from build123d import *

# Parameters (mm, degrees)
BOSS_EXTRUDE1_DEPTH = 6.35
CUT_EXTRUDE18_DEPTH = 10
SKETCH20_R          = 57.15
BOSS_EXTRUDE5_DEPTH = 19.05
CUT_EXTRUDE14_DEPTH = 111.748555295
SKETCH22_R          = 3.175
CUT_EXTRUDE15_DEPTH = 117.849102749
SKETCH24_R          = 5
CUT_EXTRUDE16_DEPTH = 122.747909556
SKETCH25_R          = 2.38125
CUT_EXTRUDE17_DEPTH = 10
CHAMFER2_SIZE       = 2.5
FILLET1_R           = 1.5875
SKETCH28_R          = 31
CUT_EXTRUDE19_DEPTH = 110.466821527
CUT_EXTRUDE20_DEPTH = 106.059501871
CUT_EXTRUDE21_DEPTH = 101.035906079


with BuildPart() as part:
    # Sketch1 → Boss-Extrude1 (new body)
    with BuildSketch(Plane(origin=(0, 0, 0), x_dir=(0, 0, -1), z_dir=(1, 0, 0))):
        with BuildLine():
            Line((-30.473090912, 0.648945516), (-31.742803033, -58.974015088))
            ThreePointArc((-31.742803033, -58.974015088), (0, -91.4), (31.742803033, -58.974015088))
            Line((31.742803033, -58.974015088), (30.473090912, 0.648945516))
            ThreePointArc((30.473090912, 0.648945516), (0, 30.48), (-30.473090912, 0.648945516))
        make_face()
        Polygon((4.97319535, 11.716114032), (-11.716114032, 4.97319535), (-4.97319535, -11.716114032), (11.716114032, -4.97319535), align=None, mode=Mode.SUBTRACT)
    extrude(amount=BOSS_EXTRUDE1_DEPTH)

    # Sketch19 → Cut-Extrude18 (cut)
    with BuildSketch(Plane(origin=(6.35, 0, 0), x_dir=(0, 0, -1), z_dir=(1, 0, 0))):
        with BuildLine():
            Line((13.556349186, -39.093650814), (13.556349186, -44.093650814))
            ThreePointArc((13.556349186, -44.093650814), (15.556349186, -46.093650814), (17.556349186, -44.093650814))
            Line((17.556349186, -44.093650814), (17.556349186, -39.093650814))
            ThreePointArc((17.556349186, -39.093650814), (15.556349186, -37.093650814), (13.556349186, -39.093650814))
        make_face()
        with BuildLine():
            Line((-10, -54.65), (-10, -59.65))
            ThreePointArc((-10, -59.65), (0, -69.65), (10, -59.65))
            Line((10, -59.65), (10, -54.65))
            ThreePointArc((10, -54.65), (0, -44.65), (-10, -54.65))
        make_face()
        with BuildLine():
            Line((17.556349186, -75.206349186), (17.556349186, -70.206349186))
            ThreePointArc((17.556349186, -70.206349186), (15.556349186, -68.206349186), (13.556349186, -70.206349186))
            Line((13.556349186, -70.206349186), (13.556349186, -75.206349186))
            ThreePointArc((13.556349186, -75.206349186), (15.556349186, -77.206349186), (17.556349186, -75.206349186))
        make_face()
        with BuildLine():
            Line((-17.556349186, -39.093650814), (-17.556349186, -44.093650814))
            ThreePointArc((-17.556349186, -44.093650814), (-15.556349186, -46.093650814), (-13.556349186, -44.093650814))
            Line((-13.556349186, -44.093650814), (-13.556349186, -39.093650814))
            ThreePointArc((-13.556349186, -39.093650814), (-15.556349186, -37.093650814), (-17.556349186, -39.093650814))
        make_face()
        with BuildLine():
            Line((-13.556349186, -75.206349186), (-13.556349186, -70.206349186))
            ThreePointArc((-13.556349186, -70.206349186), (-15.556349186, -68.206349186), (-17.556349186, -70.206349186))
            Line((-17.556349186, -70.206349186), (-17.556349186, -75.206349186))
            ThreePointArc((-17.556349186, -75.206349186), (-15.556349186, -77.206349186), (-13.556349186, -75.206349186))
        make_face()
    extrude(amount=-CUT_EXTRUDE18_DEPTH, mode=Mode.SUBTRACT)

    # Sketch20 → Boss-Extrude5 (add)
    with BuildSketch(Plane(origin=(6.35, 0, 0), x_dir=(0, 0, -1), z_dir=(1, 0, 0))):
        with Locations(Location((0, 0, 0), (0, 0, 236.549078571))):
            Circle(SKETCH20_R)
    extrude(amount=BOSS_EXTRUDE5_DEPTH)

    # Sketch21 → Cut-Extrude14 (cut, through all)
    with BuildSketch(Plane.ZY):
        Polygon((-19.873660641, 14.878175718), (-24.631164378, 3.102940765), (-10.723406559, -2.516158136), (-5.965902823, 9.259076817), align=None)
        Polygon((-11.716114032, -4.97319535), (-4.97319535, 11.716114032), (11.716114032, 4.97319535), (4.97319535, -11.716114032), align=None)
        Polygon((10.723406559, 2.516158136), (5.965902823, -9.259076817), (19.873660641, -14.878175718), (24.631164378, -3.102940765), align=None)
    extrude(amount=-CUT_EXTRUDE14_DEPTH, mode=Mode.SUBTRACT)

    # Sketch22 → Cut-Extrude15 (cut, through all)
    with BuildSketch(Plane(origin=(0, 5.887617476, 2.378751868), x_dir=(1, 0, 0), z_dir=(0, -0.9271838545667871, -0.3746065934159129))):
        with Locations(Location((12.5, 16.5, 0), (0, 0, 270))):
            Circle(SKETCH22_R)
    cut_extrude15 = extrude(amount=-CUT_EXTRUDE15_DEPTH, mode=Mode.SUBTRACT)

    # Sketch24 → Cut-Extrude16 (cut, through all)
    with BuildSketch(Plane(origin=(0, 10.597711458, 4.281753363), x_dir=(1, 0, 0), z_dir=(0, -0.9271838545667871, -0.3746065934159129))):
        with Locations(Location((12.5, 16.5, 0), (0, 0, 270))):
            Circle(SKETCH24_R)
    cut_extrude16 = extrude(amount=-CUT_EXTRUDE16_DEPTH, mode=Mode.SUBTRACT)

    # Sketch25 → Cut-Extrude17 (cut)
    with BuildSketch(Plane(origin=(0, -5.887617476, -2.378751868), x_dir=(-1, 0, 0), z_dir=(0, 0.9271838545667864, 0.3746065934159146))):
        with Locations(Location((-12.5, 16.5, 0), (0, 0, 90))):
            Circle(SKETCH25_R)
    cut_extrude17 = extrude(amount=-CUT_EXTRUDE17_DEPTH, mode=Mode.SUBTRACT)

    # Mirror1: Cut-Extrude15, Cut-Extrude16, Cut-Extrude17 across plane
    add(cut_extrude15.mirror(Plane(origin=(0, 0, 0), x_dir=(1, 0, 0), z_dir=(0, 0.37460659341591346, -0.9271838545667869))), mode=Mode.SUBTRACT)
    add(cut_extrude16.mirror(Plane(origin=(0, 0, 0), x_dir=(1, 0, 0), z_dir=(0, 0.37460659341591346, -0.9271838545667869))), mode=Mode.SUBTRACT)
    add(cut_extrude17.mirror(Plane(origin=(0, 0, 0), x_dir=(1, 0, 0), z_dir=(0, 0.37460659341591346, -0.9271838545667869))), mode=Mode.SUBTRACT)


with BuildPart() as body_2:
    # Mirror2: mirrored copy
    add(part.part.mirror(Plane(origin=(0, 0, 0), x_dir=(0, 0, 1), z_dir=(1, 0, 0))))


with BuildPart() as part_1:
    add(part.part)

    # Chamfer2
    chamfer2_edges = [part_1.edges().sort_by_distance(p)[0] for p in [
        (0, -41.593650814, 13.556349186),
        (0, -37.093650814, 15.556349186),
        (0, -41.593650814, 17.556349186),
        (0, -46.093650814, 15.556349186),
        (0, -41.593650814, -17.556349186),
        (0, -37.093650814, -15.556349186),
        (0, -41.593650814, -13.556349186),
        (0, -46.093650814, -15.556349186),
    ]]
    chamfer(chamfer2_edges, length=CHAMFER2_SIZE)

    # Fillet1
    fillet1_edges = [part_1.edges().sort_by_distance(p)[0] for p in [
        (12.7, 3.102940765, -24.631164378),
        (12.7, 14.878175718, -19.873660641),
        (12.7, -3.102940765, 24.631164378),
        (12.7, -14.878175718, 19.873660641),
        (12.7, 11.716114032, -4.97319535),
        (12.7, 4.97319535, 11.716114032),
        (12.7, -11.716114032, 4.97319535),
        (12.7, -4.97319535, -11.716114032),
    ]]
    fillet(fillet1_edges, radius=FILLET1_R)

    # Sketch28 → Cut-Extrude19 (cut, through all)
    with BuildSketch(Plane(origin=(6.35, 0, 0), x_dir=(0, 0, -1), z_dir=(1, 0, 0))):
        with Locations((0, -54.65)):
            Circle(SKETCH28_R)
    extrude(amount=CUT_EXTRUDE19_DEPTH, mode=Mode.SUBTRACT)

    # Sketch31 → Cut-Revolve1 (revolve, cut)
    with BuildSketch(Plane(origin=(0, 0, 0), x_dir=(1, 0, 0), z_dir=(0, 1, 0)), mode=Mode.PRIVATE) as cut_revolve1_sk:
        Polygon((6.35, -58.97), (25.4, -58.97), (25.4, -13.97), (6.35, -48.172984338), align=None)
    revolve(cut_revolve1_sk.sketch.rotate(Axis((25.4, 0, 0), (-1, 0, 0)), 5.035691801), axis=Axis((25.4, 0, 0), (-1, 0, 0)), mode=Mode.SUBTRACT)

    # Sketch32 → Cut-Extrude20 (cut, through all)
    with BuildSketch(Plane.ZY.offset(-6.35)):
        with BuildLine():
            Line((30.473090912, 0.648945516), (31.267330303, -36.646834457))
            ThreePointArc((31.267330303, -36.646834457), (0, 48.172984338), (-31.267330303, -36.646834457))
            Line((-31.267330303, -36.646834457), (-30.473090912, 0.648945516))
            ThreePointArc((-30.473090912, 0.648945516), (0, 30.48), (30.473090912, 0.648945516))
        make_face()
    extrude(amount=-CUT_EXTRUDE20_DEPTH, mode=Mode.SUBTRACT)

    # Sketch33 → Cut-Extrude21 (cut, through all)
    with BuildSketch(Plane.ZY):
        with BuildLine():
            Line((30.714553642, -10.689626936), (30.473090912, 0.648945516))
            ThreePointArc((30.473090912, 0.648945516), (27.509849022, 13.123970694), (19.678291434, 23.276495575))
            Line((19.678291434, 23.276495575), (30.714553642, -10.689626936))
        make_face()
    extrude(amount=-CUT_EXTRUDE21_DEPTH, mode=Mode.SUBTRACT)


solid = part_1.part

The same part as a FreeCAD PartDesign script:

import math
import FreeCAD as App
import Part
import Sketcher
from FreeCAD import Vector
Q = App.Units.Quantity


def edges_at(feature, points):
    """Names of the edges that pass closest to the given points."""
    edges = feature.Shape.Edges
    near = lambda p: min(range(len(edges)), key=lambda i: edges[i].distToShape(Part.Vertex(*p))[0])
    return sorted({f"Edge{near(p) + 1}" for p in points})


def add_polygon(sketch, points):
    """Adds a closed chain of lines whose ends are joined by coincident constraints."""
    first, n = sketch.GeometryCount, len(points)
    for a, b in zip(points, points[1:] + points[:1]):
        sketch.addGeometry(Part.LineSegment(App.Vector(*a, 0), App.Vector(*b, 0)), False)
    for i in range(n):
        sketch.addConstraint(Sketcher.Constraint("Coincident", first + i, 2, first + (i + 1) % n, 1))

doc = App.newDocument("Part")
body = doc.addObject("PartDesign::Body", "Body")

sketch1 = doc.addObject("Sketcher::SketchObject", "Sketch")
body.addObject(sketch1)
sketch1.AttachmentSupport = (doc.YZ_Plane, [""])
sketch1.MapMode = "FlatFace"
sketch1.addGeometry(Part.LineSegment(Vector(0.648946, 30.473091, 0), Vector(-58.974015, 31.742803, 0)), False)
sketch1.addGeometry(Part.ArcOfCircle(Part.Circle(Vector(-59.65, 0, 0), Vector(0, 0, 1), 31.75), math.radians(88.780031), math.radians(271.219969)), False)
sketch1.addGeometry(Part.LineSegment(Vector(-58.974015, -31.742803, 0), Vector(0.648946, -30.473091, 0)), False)
sketch1.addGeometry(Part.ArcOfCircle(Part.Circle(Vector(0, 0, 0), Vector(0, 0, 1), 30.48), math.radians(-88.780031), math.radians(88.780031)), False)
add_polygon(sketch1, [(4.973195, 11.716114), (11.716114, -4.973195), (-4.973195, -11.716114), (-11.716114, 4.973195)])
sketch1.addConstraint([
    Sketcher.Constraint("Tangent", 0, 2, 1, 1),
    Sketcher.Constraint("Tangent", 1, 2, 2, 1),
    Sketcher.Constraint("Tangent", 2, 2, 3, 1),
    Sketcher.Constraint("Tangent", 3, 2, 0, 1),
    Sketcher.Constraint("Coincident", 3, 3, -1, 1),
    Sketcher.Constraint("Symmetric", 4, 2, 6, 2, -1, 1),
    Sketcher.Constraint("Symmetric", 5, 2, 7, 2, -1, 1),
    Sketcher.Constraint("PointOnObject", 1, 3, -1),
    Sketcher.Constraint("Perpendicular", 4, 5),
    Sketcher.Constraint("Equal", 4, 5),
    Sketcher.Constraint("Angle", 4, Q("-68 deg")),
    Sketcher.Constraint("Radius", 1, Q("31.75 mm")),
    Sketcher.Constraint("Radius", 3, Q("30.48 mm")),
    Sketcher.Constraint("Distance", 4, Q("18 mm")),
    Sketcher.Constraint("DistanceX", 1, 3, -1, 1, Q("59.65 mm")),
])
pad1 = doc.addObject("PartDesign::Pad", "Pad")
body.addObject(pad1)
pad1.Profile = sketch1
pad1.Length = 6.35

sketch2 = doc.addObject("Sketcher::SketchObject", "Sketch001")
body.addObject(sketch2)
sketch2.AttachmentSupport = (doc.YZ_Plane, [""])
sketch2.MapMode = "FlatFace"
sketch2.AttachmentOffset = App.Placement(Vector(0, 0, 6.35), App.Rotation())
sketch2.addGeometry([
    Part.LineSegment(Vector(-39.093651, -13.556349, 0), Vector(-44.093651, -13.556349, 0)),
    Part.ArcOfCircle(Part.Circle(Vector(-44.093651, -15.556349, 0), Vector(0, 0, 1), 2), math.radians(90), math.radians(270)),
    Part.LineSegment(Vector(-44.093651, -17.556349, 0), Vector(-39.093651, -17.556349, 0)),
    Part.ArcOfCircle(Part.Circle(Vector(-39.093651, -15.556349, 0), Vector(0, 0, 1), 2), math.radians(-90), math.radians(90)),
    Part.LineSegment(Vector(-54.65, 10, 0), Vector(-59.65, 10, 0)),
    Part.ArcOfCircle(Part.Circle(Vector(-59.65, 0, 0), Vector(0, 0, 1), 10), math.radians(90), math.radians(270)),
    Part.LineSegment(Vector(-59.65, -10, 0), Vector(-54.65, -10, 0)),
    Part.ArcOfCircle(Part.Circle(Vector(-54.65, 0, 0), Vector(0, 0, 1), 10), math.radians(-90), math.radians(90)),
    Part.LineSegment(Vector(-75.206349, -17.556349, 0), Vector(-70.206349, -17.556349, 0)),
    Part.ArcOfCircle(Part.Circle(Vector(-70.206349, -15.556349, 0), Vector(0, 0, 1), 2), math.radians(-90), math.radians(90)),
    Part.LineSegment(Vector(-70.206349, -13.556349, 0), Vector(-75.206349, -13.556349, 0)),
    Part.ArcOfCircle(Part.Circle(Vector(-75.206349, -15.556349, 0), Vector(0, 0, 1), 2), math.radians(90), math.radians(270)),
    Part.LineSegment(Vector(-39.093651, 17.556349, 0), Vector(-44.093651, 17.556349, 0)),
    Part.ArcOfCircle(Part.Circle(Vector(-44.093651, 15.556349, 0), Vector(0, 0, 1), 2), math.radians(90), math.radians(270)),
    Part.LineSegment(Vector(-44.093651, 13.556349, 0), Vector(-39.093651, 13.556349, 0)),
    Part.ArcOfCircle(Part.Circle(Vector(-39.093651, 15.556349, 0), Vector(0, 0, 1), 2), math.radians(-90), math.radians(90)),
    Part.LineSegment(Vector(-75.206349, 13.556349, 0), Vector(-70.206349, 13.556349, 0)),
    Part.ArcOfCircle(Part.Circle(Vector(-70.206349, 15.556349, 0), Vector(0, 0, 1), 2), math.radians(-90), math.radians(90)),
    Part.LineSegment(Vector(-70.206349, 17.556349, 0), Vector(-75.206349, 17.556349, 0)),
    Part.ArcOfCircle(Part.Circle(Vector(-75.206349, 15.556349, 0), Vector(0, 0, 1), 2), math.radians(90), math.radians(270)),
], False)
sketch2.addConstraint([
    Sketcher.Constraint("Tangent", 0, 2, 1, 1),
    Sketcher.Constraint("Tangent", 1, 2, 2, 1),
    Sketcher.Constraint("Tangent", 2, 2, 3, 1),
    Sketcher.Constraint("Tangent", 3, 2, 0, 1),
    Sketcher.Constraint("Tangent", 4, 2, 5, 1),
    Sketcher.Constraint("Tangent", 5, 2, 6, 1),
    Sketcher.Constraint("Tangent", 6, 2, 7, 1),
    Sketcher.Constraint("Tangent", 7, 2, 4, 1),
    Sketcher.Constraint("Tangent", 8, 2, 9, 1),
    Sketcher.Constraint("Tangent", 9, 2, 10, 1),
    Sketcher.Constraint("Tangent", 10, 2, 11, 1),
    Sketcher.Constraint("Tangent", 11, 2, 8, 1),
    Sketcher.Constraint("Tangent", 12, 2, 13, 1),
    Sketcher.Constraint("Tangent", 13, 2, 14, 1),
    Sketcher.Constraint("Tangent", 14, 2, 15, 1),
    Sketcher.Constraint("Tangent", 15, 2, 12, 1),
    Sketcher.Constraint("Tangent", 16, 2, 17, 1),
    Sketcher.Constraint("Tangent", 17, 2, 18, 1),
    Sketcher.Constraint("Tangent", 18, 2, 19, 1),
    Sketcher.Constraint("Tangent", 19, 2, 16, 1),
    Sketcher.Constraint("Horizontal", 0),
    Sketcher.Constraint("Horizontal", 2),
    Sketcher.Constraint("Horizontal", 4),
    Sketcher.Constraint("Horizontal", 6),
    Sketcher.Constraint("Horizontal", 8),
    Sketcher.Constraint("Horizontal", 10),
    Sketcher.Constraint("Horizontal", 12),
    Sketcher.Constraint("Horizontal", 14),
    Sketcher.Constraint("Horizontal", 16),
    Sketcher.Constraint("Horizontal", 18),
    Sketcher.Constraint("Equal", 3, 9),
    Sketcher.Constraint("Equal", 11, 13),
    Sketcher.Constraint("Equal", 15, 17),
    Sketcher.Constraint("Symmetric", 1, 3, 13, 3, -1),
    Sketcher.Constraint("Symmetric", 9, 3, 17, 3, -1),
    Sketcher.Constraint("PointOnObject", 5, 3, -1),
    Sketcher.Constraint("Horizontal", 3, 3, 9, 3),
    Sketcher.Constraint("Vertical", 3, 3, 15, 3),
    Sketcher.Constraint("Vertical", 11, 3, 19, 3),
    Sketcher.Constraint("Equal", 2, 4),
    Sketcher.Constraint("Equal", 6, 8),
    Sketcher.Constraint("Radius", 1, Q("2 mm")),
    Sketcher.Constraint("Radius", 5, Q("10 mm")),
    Sketcher.Constraint("DistanceX", 0, 2, 0, 1, Q("5 mm")),
    Sketcher.Constraint("DistanceX", 5, 3, -1, 1, Q("59.65 mm")),
    Sketcher.Constraint("DistanceX", 9, 3, 1, 3, Q("26.112698 mm")),
    Sketcher.Constraint("DistanceY", 1, 3, 13, 3, Q("31.112698 mm")),
    Sketcher.Constraint("DistanceX", 1, 3, -1, 1, Q("44.093651 mm")),
])
pocket1 = doc.addObject("PartDesign::Pocket", "Pocket")
body.addObject(pocket1)
pocket1.Profile = sketch2
pocket1.Length = 10

sketch3 = doc.addObject("Sketcher::SketchObject", "Sketch002")
body.addObject(sketch3)
sketch3.AttachmentSupport = (doc.YZ_Plane, [""])
sketch3.MapMode = "FlatFace"
sketch3.AttachmentOffset = App.Placement(Vector(0, 0, 6.35), App.Rotation())
sketch3.addGeometry(Part.Circle(Vector(0, 0, 0), Vector(0, 0, 1), 57.15), False)
sketch3.addConstraint([
    Sketcher.Constraint("Coincident", 0, 3, -1, 1),
    Sketcher.Constraint("Diameter", 0, Q("114.3 mm")),
])
pad2 = doc.addObject("PartDesign::Pad", "Pad001")
body.addObject(pad2)
pad2.Profile = sketch3
pad2.Length = 19.05

sketch4 = doc.addObject("Sketcher::SketchObject", "Sketch003")
body.addObject(sketch4)
sketch4.AttachmentSupport = (doc.YZ_Plane, [""])
sketch4.MapMode = "FlatFace"
add_polygon(sketch4, [(14.878176, -19.873661), (3.102941, -24.631164), (-2.516158, -10.723407), (-4.973195, -11.716114), (-11.716114, 4.973195), (-9.259077, 5.965903), (-14.878176, 19.873661), (-3.102941, 24.631164), (2.516158, 10.723407), (4.973195, 11.716114), (11.716114, -4.973195), (9.259077, -5.965903)])
sketch4.addConstraint([
    Sketcher.Constraint("Symmetric", 0, 2, 6, 2, -1, 1),
    Sketcher.Constraint("Symmetric", 1, 2, 7, 2, -1, 1),
    Sketcher.Constraint("Symmetric", 2, 2, 8, 2, -1, 1),
    Sketcher.Constraint("Symmetric", 3, 2, 9, 2, -1, 1),
    Sketcher.Constraint("Symmetric", 4, 2, 10, 2, -1, 1),
    Sketcher.Constraint("Symmetric", 5, 2, 11, 2, -1, 1),
    Sketcher.Constraint("Perpendicular", 0, 1),
    Sketcher.Constraint("Perpendicular", 1, 2),
    Sketcher.Constraint("Perpendicular", 2, 3),
    Sketcher.Constraint("Perpendicular", 3, 4),
    Sketcher.Constraint("Perpendicular", 4, 5),
    Sketcher.Constraint("Equal", 2, 4),
    Sketcher.Constraint("Equal", 1, 5),
    Sketcher.Constraint("Angle", 0, Q("-158 deg")),
    Sketcher.Constraint("Distance", 1, Q("15 mm")),
    Sketcher.Constraint("Distance", 3, Q("18 mm")),
    Sketcher.Constraint("Distance", 0, Q("12.7 mm")),
    Sketcher.Constraint("Distance", 2, Q("2.65 mm")),
])
pocket2 = doc.addObject("PartDesign::Pocket", "Pocket001")
body.addObject(pocket2)
pocket2.Profile = sketch4
pocket2.Type = "ThroughAll"
pocket2.Reversed = True

sketch5 = doc.addObject("Sketcher::SketchObject", "Sketch004")
body.addObject(sketch5)
sketch5.Placement = App.Placement(Vector(0, 5.887617, 2.378752), App.Rotation(Vector(1, 0, 0), Vector(0, -0.374606593, 0.927183855), Vector(0, -0.927183855, -0.374606593), "ZXY"))
sketch5.addGeometry(Part.Circle(Vector(12.5, 16.5, 0), Vector(0, 0, 1), 3.175), False)
sketch5.addConstraint([
    Sketcher.Constraint("Diameter", 0, Q("6.35 mm")),
    Sketcher.Constraint("DistanceX", -1, 1, 0, 3, Q("12.5 mm")),
    Sketcher.Constraint("DistanceY", -1, 1, 0, 3, Q("16.5 mm")),
])
pocket3 = doc.addObject("PartDesign::Pocket", "Pocket002")
body.addObject(pocket3)
pocket3.Profile = sketch5
pocket3.Type = "ThroughAll"

sketch6 = doc.addObject("Sketcher::SketchObject", "Sketch005")
body.addObject(sketch6)
sketch6.Placement = App.Placement(Vector(0, 10.597711, 4.281753), App.Rotation(Vector(1, 0, 0), Vector(0, -0.374606593, 0.927183855), Vector(0, -0.927183855, -0.374606593), "ZXY"))
sketch6.addGeometry(Part.Circle(Vector(12.5, 16.5, 0), Vector(0, 0, 1), 5), False)
sketch6.addConstraint([
    Sketcher.Constraint("Diameter", 0, Q("10 mm")),
    Sketcher.Constraint("DistanceX", -1, 1, 0, 3, Q("12.5 mm")),
    Sketcher.Constraint("DistanceY", -1, 1, 0, 3, Q("16.5 mm")),
])
pocket4 = doc.addObject("PartDesign::Pocket", "Pocket003")
body.addObject(pocket4)
pocket4.Profile = sketch6
pocket4.Type = "ThroughAll"

sketch7 = doc.addObject("Sketcher::SketchObject", "Sketch006")
body.addObject(sketch7)
sketch7.Placement = App.Placement(Vector(0, -5.887617, -2.378752), App.Rotation(Vector(-1, 0, 0), Vector(0, -0.374606593, 0.927183855), Vector(0, 0.927183855, 0.374606593), "ZXY"))
sketch7.addGeometry(Part.Circle(Vector(-12.5, 16.5, 0), Vector(0, 0, 1), 2.38125), False)
sketch7.addConstraint([
    Sketcher.Constraint("Diameter", 0, Q("4.7625 mm")),
    Sketcher.Constraint("DistanceX", 0, 3, -1, 1, Q("12.5 mm")),
    Sketcher.Constraint("DistanceY", -1, 1, 0, 3, Q("16.5 mm")),
])
pocket5 = doc.addObject("PartDesign::Pocket", "Pocket004")
body.addObject(pocket5)
pocket5.Profile = sketch7
pocket5.Length = 10
doc.recompute()

datumplane = doc.addObject("PartDesign::Plane", "DatumPlane")
body.addObject(datumplane)
datumplane.Placement = App.Placement(Vector(0, 0, 0), App.Rotation(Vector(0, -0.927183855, -0.374606593), Vector(-1, 0, 0), Vector(0, 0.374606593, -0.927183855), "ZXY"))
mirrored = doc.addObject("PartDesign::Mirrored", "Mirrored")
body.addObject(mirrored)
mirrored.Originals = [pocket3, pocket4, pocket5]
mirrored.MirrorPlane = (datumplane, [""])
body.Tip = mirrored
body2 = doc.addObject("PartDesign::Body", "Body001")
doc.recompute()

mirroring = doc.addObject("Part::Mirroring", "Mirroring")
mirroring.Source = body
mirroring.Base = Vector(0, 0, 0)
mirroring.Normal = Vector(1, 0, 0)
body2.BaseFeature = mirroring
doc.recompute()

chamfer = doc.addObject("PartDesign::Chamfer", "Chamfer")
body.addObject(chamfer)
chamfer.Base = (mirrored, edges_at(mirrored, [
    (0, -41.594, 13.556),
    (0, -37.094, 15.556),
    (0, -41.594, 17.556),
    (0, -46.094, 15.556),
    (0, -41.594, -17.556),
    (0, -37.094, -15.556),
    (0, -41.594, -13.556),
    (0, -46.094, -15.556),
]))
chamfer.Size = 2.5
doc.recompute()

fillet = doc.addObject("PartDesign::Fillet", "Fillet")
body.addObject(fillet)
fillet.Base = (chamfer, edges_at(chamfer, [
    (12.7, 3.103, -24.631),
    (12.7, 14.878, -19.874),
    (12.7, -3.103, 24.631),
    (12.7, -14.878, 19.874),
    (12.7, 11.716, -4.973),
    (12.7, 4.973, 11.716),
    (12.7, -11.716, 4.973),
    (12.7, -4.973, -11.716),
]))
fillet.Radius = 1.5875

sketch8 = doc.addObject("Sketcher::SketchObject", "Sketch007")
body.addObject(sketch8)
sketch8.AttachmentSupport = (doc.YZ_Plane, [""])
sketch8.MapMode = "FlatFace"
sketch8.AttachmentOffset = App.Placement(Vector(0, 0, 6.35), App.Rotation())
sketch8.addGeometry(Part.Circle(Vector(-54.65, 0, 0), Vector(0, 0, 1), 31), False)
sketch8.addConstraint([
    Sketcher.Constraint("PointOnObject", 0, 3, -1),
    Sketcher.Constraint("Diameter", 0, Q("62 mm")),
    Sketcher.Constraint("DistanceX", 0, 3, -1, 1, Q("54.65 mm")),
])
pocket6 = doc.addObject("PartDesign::Pocket", "Pocket005")
body.addObject(pocket6)
pocket6.Profile = sketch8
pocket6.Type = "ThroughAll"
pocket6.Reversed = True

sketch9 = doc.addObject("Sketcher::SketchObject", "Sketch008")
body.addObject(sketch9)
sketch9.AttachmentSupport = (doc.XZ_Plane, [""])
sketch9.MapMode = "FlatFace"
add_polygon(sketch9, [(6.35, 58.97), (25.4, 58.97), (25.4, 13.97), (6.35, 48.172984)])
sketch9.addConstraint([
    Sketcher.Constraint("Horizontal", 0),
    Sketcher.Constraint("Vertical", 1),
    Sketcher.Constraint("Vertical", 3),
    Sketcher.Constraint("DistanceY", 1, 2, 1, 1, Q("45 mm")),
    Sketcher.Constraint("DistanceX", 0, 1, 0, 2, Q("19.05 mm")),
    Sketcher.Constraint("DistanceX", -1, 1, 0, 2, Q("25.4 mm")),
    Sketcher.Constraint("DistanceY", -1, 1, 0, 2, Q("58.97 mm")),
    Sketcher.Constraint("Distance", 2, Q("39.150308 mm")),
])
groove = doc.addObject("PartDesign::Groove", "Groove")
body.addObject(groove)
groove.Profile = sketch9
groove.ReferenceAxis = (sketch9, ["H_Axis"])
groove.Angle = 360

sketch10 = doc.addObject("Sketcher::SketchObject", "Sketch009")
body.addObject(sketch10)
sketch10.AttachmentSupport = (doc.YZ_Plane, [""])
sketch10.MapMode = "FlatFace"
sketch10.AttachmentOffset = App.Placement(Vector(0, 0, 6.35), App.Rotation())
sketch10.addGeometry([
    Part.LineSegment(Vector(0.648946, 30.473091, 0), Vector(-36.646834, 31.26733, 0)),
    Part.ArcOfCircle(Part.Circle(Vector(0, 0, 0), Vector(0, 0, 1), 48.172984), math.radians(-139.528962), math.radians(139.528962)),
    Part.LineSegment(Vector(-36.646834, -31.26733, 0), Vector(0.648946, -30.473091, 0)),
    Part.ArcOfCircle(Part.Circle(Vector(0, 0, 0), Vector(0, 0, 1), 30.48), math.radians(-88.780031), math.radians(88.780031)),
], False)
sketch10.addConstraint([
    Sketcher.Constraint("Coincident", 0, 2, 1, 2),
    Sketcher.Constraint("Coincident", 1, 1, 2, 1),
    Sketcher.Constraint("Tangent", 2, 2, 3, 1),
    Sketcher.Constraint("Tangent", 3, 2, 0, 1),
    Sketcher.Constraint("Coincident", 1, 3, -1, 1),
    Sketcher.Constraint("Coincident", 3, 3, -1, 1),
    Sketcher.Constraint("Vertical", 0, 2, 1, 1),
    Sketcher.Constraint("Radius", 3, Q("30.48 mm")),
    Sketcher.Constraint("Radius", 1, Q("48.172984 mm")),
    Sketcher.Constraint("DistanceY", -1, 1, 0, 2, Q("31.26733 mm")),
])
pocket7 = doc.addObject("PartDesign::Pocket", "Pocket006")
body.addObject(pocket7)
pocket7.Profile = sketch10
pocket7.Type = "ThroughAll"
pocket7.Reversed = True

sketch11 = doc.addObject("Sketcher::SketchObject", "Sketch010")
body.addObject(sketch11)
sketch11.AttachmentSupport = (doc.YZ_Plane, [""])
sketch11.MapMode = "FlatFace"
sketch11.addGeometry([
    Part.LineSegment(Vector(-10.689627, 30.714554, 0), Vector(0.648946, 30.473091, 0)),
    Part.ArcOfCircle(Part.Circle(Vector(0, 0, 0), Vector(0, 0, 1), 30.48), math.radians(40.211669), math.radians(88.780031)),
    Part.LineSegment(Vector(23.276496, 19.678291, 0), Vector(-10.689627, 30.714554, 0)),
], False)
sketch11.addConstraint([
    Sketcher.Constraint("Tangent", 0, 2, 1, 2),
    Sketcher.Constraint("Coincident", 1, 1, 2, 1),
    Sketcher.Constraint("Coincident", 2, 2, 0, 1),
    Sketcher.Constraint("Coincident", 1, 3, -1, 1),
    Sketcher.Constraint("Angle", 2, Q("162 deg")),
    Sketcher.Constraint("Radius", 1, Q("30.48 mm")),
    Sketcher.Constraint("DistanceY", 1, 1, 0, 2, Q("10.794799 mm")),
    Sketcher.Constraint("DistanceY", -1, 1, 0, 2, Q("30.473091 mm")),
])
pocket8 = doc.addObject("PartDesign::Pocket", "Pocket007")
body.addObject(pocket8)
pocket8.Profile = sketch11
pocket8.Type = "ThroughAll"
pocket8.Reversed = True
body2.Visibility = False
mirroring.Visibility = False

doc.recompute()
